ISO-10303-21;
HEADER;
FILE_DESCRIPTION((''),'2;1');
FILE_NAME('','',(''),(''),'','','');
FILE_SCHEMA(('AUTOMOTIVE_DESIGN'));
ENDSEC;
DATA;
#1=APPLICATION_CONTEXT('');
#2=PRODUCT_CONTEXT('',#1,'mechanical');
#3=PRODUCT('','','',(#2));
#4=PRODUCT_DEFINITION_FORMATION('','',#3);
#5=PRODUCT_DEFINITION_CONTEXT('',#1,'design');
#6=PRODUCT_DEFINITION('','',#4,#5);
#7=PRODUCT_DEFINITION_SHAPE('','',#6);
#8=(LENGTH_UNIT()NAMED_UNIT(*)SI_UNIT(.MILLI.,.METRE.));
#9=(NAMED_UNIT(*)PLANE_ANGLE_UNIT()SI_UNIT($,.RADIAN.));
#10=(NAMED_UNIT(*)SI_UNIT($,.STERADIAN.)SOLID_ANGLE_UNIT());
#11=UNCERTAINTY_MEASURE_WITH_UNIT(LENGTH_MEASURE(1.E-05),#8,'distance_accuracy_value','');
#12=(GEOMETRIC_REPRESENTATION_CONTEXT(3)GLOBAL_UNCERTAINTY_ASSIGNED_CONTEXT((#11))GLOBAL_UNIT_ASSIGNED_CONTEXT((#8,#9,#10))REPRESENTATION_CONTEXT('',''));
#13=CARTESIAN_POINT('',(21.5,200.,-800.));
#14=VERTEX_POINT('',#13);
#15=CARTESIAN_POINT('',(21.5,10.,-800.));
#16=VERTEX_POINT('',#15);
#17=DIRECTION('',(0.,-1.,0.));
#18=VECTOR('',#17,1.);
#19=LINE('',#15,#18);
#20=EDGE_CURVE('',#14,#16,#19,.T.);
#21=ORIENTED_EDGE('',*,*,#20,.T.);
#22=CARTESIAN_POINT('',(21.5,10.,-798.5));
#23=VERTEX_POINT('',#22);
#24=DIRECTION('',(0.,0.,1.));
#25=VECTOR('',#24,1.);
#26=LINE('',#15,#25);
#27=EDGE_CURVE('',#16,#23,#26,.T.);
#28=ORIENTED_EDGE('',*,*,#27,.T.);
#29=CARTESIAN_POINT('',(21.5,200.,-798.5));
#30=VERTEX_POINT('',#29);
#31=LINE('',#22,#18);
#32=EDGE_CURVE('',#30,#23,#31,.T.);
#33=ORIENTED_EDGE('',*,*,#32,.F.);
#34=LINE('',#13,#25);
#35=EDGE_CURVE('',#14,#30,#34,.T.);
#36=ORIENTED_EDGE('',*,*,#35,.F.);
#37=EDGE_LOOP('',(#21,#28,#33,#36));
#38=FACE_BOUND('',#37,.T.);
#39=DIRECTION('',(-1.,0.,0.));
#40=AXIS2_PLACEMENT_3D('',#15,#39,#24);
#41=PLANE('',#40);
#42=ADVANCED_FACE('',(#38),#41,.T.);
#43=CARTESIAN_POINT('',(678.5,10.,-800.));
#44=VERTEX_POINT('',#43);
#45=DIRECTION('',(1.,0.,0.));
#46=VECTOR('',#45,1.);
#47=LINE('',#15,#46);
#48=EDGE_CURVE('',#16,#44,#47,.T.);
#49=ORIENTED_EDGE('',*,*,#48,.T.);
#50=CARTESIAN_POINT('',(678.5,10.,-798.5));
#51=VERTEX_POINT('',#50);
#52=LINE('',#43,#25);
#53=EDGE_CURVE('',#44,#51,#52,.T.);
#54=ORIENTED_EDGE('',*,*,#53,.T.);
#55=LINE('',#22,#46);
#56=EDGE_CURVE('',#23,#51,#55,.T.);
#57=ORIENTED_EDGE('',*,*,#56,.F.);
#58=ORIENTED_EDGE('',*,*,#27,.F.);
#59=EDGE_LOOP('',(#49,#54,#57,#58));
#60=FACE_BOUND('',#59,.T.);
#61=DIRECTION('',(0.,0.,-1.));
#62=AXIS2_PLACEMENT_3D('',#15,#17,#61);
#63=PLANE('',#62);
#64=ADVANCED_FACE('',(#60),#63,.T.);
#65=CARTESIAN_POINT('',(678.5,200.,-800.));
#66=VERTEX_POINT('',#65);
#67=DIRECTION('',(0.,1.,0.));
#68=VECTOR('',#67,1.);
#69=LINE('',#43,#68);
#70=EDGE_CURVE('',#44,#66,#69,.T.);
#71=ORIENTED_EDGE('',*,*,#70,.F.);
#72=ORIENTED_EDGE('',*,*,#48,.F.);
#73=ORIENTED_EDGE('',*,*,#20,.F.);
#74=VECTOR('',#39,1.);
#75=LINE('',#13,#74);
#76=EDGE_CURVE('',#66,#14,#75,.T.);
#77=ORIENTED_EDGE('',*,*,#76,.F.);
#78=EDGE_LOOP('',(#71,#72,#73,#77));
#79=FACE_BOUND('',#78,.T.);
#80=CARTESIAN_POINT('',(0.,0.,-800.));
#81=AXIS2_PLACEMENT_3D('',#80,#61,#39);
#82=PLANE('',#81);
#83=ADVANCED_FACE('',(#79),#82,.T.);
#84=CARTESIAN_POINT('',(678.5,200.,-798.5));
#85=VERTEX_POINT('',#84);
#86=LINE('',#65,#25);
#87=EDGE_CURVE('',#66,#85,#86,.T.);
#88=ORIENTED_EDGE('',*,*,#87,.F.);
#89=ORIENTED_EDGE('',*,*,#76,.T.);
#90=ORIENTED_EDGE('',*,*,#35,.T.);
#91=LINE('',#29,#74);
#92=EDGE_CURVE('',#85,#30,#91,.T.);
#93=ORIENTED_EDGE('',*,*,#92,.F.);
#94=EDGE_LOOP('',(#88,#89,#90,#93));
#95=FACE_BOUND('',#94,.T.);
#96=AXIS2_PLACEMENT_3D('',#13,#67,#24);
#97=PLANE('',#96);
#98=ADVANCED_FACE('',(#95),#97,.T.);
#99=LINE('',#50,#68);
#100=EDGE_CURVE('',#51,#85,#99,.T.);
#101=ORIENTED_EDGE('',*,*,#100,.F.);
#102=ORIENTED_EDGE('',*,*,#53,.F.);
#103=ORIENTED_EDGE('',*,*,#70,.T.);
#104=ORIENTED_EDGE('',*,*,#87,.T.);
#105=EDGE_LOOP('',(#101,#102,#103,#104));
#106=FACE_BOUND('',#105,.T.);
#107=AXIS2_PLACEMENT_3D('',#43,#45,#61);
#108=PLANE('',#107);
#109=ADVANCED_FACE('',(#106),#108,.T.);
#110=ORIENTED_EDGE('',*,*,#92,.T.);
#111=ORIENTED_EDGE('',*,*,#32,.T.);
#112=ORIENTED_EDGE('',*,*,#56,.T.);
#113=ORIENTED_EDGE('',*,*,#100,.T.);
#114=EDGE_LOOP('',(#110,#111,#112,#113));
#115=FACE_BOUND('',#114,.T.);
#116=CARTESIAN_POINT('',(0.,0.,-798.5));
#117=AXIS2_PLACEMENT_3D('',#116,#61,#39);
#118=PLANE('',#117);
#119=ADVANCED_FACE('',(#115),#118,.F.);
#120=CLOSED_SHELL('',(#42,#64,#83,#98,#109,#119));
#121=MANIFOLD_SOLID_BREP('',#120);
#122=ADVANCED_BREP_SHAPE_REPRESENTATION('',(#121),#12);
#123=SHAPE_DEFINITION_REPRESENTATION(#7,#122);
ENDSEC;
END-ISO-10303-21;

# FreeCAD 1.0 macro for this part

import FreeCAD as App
import Part
import Sketcher


def add_polygon(sketch, points):
    """Adds a closed chain of lines whose ends are joined by coincident constraints."""
    first, n = sketch.GeometryCount, len(points)
    for a, b in zip(points, points[1:] + points[:1]):
        sketch.addGeometry(Part.LineSegment(App.Vector(*a, 0), App.Vector(*b, 0)), False)
    for i in range(n):
        sketch.addConstraint(Sketcher.Constraint("Coincident", first + i, 2, first + (i + 1) % n, 1))

doc = App.newDocument("Part")
body = doc.addObject("PartDesign::Body", "Body")

sketch1 = body.newObject("Sketcher::SketchObject", "Sketch")
sketch1.AttachmentSupport = (doc.getObject("XY_Plane"), [""])
sketch1.MapMode = "FlatFace"
sketch1.AttachmentOffset = App.Placement(App.Vector(0, 0, -798.5), App.Rotation())
add_polygon(sketch1, [(21.5, 200), (21.5, 10), (678.5, 10), (678.5, 200)])
sketch1.addConstraint(Sketcher.Constraint("Vertical", 0))
sketch1.addConstraint(Sketcher.Constraint("Horizontal", 1))
sketch1.addConstraint(Sketcher.Constraint("Vertical", 2))
sketch1.addConstraint(Sketcher.Constraint("Horizontal", 3))
sketch1.addConstraint(Sketcher.Constraint("DistanceX", 1, 1, 1, 2, 657.0))
sketch1.addConstraint(Sketcher.Constraint("DistanceY", 0, 2, 0, 1, 190.0))
sketch1.addConstraint(Sketcher.Constraint("DistanceY", -1, 1, 0, 2, 10.0))
sketch1.addConstraint(Sketcher.Constraint("DistanceX", -1, 1, 0, 2, 21.5))
pad1 = body.newObject("PartDesign::Pad", "Pad")
pad1.Profile = sketch1
pad1.Length = 1.5
pad1.Reversed = True

doc.recompute()
